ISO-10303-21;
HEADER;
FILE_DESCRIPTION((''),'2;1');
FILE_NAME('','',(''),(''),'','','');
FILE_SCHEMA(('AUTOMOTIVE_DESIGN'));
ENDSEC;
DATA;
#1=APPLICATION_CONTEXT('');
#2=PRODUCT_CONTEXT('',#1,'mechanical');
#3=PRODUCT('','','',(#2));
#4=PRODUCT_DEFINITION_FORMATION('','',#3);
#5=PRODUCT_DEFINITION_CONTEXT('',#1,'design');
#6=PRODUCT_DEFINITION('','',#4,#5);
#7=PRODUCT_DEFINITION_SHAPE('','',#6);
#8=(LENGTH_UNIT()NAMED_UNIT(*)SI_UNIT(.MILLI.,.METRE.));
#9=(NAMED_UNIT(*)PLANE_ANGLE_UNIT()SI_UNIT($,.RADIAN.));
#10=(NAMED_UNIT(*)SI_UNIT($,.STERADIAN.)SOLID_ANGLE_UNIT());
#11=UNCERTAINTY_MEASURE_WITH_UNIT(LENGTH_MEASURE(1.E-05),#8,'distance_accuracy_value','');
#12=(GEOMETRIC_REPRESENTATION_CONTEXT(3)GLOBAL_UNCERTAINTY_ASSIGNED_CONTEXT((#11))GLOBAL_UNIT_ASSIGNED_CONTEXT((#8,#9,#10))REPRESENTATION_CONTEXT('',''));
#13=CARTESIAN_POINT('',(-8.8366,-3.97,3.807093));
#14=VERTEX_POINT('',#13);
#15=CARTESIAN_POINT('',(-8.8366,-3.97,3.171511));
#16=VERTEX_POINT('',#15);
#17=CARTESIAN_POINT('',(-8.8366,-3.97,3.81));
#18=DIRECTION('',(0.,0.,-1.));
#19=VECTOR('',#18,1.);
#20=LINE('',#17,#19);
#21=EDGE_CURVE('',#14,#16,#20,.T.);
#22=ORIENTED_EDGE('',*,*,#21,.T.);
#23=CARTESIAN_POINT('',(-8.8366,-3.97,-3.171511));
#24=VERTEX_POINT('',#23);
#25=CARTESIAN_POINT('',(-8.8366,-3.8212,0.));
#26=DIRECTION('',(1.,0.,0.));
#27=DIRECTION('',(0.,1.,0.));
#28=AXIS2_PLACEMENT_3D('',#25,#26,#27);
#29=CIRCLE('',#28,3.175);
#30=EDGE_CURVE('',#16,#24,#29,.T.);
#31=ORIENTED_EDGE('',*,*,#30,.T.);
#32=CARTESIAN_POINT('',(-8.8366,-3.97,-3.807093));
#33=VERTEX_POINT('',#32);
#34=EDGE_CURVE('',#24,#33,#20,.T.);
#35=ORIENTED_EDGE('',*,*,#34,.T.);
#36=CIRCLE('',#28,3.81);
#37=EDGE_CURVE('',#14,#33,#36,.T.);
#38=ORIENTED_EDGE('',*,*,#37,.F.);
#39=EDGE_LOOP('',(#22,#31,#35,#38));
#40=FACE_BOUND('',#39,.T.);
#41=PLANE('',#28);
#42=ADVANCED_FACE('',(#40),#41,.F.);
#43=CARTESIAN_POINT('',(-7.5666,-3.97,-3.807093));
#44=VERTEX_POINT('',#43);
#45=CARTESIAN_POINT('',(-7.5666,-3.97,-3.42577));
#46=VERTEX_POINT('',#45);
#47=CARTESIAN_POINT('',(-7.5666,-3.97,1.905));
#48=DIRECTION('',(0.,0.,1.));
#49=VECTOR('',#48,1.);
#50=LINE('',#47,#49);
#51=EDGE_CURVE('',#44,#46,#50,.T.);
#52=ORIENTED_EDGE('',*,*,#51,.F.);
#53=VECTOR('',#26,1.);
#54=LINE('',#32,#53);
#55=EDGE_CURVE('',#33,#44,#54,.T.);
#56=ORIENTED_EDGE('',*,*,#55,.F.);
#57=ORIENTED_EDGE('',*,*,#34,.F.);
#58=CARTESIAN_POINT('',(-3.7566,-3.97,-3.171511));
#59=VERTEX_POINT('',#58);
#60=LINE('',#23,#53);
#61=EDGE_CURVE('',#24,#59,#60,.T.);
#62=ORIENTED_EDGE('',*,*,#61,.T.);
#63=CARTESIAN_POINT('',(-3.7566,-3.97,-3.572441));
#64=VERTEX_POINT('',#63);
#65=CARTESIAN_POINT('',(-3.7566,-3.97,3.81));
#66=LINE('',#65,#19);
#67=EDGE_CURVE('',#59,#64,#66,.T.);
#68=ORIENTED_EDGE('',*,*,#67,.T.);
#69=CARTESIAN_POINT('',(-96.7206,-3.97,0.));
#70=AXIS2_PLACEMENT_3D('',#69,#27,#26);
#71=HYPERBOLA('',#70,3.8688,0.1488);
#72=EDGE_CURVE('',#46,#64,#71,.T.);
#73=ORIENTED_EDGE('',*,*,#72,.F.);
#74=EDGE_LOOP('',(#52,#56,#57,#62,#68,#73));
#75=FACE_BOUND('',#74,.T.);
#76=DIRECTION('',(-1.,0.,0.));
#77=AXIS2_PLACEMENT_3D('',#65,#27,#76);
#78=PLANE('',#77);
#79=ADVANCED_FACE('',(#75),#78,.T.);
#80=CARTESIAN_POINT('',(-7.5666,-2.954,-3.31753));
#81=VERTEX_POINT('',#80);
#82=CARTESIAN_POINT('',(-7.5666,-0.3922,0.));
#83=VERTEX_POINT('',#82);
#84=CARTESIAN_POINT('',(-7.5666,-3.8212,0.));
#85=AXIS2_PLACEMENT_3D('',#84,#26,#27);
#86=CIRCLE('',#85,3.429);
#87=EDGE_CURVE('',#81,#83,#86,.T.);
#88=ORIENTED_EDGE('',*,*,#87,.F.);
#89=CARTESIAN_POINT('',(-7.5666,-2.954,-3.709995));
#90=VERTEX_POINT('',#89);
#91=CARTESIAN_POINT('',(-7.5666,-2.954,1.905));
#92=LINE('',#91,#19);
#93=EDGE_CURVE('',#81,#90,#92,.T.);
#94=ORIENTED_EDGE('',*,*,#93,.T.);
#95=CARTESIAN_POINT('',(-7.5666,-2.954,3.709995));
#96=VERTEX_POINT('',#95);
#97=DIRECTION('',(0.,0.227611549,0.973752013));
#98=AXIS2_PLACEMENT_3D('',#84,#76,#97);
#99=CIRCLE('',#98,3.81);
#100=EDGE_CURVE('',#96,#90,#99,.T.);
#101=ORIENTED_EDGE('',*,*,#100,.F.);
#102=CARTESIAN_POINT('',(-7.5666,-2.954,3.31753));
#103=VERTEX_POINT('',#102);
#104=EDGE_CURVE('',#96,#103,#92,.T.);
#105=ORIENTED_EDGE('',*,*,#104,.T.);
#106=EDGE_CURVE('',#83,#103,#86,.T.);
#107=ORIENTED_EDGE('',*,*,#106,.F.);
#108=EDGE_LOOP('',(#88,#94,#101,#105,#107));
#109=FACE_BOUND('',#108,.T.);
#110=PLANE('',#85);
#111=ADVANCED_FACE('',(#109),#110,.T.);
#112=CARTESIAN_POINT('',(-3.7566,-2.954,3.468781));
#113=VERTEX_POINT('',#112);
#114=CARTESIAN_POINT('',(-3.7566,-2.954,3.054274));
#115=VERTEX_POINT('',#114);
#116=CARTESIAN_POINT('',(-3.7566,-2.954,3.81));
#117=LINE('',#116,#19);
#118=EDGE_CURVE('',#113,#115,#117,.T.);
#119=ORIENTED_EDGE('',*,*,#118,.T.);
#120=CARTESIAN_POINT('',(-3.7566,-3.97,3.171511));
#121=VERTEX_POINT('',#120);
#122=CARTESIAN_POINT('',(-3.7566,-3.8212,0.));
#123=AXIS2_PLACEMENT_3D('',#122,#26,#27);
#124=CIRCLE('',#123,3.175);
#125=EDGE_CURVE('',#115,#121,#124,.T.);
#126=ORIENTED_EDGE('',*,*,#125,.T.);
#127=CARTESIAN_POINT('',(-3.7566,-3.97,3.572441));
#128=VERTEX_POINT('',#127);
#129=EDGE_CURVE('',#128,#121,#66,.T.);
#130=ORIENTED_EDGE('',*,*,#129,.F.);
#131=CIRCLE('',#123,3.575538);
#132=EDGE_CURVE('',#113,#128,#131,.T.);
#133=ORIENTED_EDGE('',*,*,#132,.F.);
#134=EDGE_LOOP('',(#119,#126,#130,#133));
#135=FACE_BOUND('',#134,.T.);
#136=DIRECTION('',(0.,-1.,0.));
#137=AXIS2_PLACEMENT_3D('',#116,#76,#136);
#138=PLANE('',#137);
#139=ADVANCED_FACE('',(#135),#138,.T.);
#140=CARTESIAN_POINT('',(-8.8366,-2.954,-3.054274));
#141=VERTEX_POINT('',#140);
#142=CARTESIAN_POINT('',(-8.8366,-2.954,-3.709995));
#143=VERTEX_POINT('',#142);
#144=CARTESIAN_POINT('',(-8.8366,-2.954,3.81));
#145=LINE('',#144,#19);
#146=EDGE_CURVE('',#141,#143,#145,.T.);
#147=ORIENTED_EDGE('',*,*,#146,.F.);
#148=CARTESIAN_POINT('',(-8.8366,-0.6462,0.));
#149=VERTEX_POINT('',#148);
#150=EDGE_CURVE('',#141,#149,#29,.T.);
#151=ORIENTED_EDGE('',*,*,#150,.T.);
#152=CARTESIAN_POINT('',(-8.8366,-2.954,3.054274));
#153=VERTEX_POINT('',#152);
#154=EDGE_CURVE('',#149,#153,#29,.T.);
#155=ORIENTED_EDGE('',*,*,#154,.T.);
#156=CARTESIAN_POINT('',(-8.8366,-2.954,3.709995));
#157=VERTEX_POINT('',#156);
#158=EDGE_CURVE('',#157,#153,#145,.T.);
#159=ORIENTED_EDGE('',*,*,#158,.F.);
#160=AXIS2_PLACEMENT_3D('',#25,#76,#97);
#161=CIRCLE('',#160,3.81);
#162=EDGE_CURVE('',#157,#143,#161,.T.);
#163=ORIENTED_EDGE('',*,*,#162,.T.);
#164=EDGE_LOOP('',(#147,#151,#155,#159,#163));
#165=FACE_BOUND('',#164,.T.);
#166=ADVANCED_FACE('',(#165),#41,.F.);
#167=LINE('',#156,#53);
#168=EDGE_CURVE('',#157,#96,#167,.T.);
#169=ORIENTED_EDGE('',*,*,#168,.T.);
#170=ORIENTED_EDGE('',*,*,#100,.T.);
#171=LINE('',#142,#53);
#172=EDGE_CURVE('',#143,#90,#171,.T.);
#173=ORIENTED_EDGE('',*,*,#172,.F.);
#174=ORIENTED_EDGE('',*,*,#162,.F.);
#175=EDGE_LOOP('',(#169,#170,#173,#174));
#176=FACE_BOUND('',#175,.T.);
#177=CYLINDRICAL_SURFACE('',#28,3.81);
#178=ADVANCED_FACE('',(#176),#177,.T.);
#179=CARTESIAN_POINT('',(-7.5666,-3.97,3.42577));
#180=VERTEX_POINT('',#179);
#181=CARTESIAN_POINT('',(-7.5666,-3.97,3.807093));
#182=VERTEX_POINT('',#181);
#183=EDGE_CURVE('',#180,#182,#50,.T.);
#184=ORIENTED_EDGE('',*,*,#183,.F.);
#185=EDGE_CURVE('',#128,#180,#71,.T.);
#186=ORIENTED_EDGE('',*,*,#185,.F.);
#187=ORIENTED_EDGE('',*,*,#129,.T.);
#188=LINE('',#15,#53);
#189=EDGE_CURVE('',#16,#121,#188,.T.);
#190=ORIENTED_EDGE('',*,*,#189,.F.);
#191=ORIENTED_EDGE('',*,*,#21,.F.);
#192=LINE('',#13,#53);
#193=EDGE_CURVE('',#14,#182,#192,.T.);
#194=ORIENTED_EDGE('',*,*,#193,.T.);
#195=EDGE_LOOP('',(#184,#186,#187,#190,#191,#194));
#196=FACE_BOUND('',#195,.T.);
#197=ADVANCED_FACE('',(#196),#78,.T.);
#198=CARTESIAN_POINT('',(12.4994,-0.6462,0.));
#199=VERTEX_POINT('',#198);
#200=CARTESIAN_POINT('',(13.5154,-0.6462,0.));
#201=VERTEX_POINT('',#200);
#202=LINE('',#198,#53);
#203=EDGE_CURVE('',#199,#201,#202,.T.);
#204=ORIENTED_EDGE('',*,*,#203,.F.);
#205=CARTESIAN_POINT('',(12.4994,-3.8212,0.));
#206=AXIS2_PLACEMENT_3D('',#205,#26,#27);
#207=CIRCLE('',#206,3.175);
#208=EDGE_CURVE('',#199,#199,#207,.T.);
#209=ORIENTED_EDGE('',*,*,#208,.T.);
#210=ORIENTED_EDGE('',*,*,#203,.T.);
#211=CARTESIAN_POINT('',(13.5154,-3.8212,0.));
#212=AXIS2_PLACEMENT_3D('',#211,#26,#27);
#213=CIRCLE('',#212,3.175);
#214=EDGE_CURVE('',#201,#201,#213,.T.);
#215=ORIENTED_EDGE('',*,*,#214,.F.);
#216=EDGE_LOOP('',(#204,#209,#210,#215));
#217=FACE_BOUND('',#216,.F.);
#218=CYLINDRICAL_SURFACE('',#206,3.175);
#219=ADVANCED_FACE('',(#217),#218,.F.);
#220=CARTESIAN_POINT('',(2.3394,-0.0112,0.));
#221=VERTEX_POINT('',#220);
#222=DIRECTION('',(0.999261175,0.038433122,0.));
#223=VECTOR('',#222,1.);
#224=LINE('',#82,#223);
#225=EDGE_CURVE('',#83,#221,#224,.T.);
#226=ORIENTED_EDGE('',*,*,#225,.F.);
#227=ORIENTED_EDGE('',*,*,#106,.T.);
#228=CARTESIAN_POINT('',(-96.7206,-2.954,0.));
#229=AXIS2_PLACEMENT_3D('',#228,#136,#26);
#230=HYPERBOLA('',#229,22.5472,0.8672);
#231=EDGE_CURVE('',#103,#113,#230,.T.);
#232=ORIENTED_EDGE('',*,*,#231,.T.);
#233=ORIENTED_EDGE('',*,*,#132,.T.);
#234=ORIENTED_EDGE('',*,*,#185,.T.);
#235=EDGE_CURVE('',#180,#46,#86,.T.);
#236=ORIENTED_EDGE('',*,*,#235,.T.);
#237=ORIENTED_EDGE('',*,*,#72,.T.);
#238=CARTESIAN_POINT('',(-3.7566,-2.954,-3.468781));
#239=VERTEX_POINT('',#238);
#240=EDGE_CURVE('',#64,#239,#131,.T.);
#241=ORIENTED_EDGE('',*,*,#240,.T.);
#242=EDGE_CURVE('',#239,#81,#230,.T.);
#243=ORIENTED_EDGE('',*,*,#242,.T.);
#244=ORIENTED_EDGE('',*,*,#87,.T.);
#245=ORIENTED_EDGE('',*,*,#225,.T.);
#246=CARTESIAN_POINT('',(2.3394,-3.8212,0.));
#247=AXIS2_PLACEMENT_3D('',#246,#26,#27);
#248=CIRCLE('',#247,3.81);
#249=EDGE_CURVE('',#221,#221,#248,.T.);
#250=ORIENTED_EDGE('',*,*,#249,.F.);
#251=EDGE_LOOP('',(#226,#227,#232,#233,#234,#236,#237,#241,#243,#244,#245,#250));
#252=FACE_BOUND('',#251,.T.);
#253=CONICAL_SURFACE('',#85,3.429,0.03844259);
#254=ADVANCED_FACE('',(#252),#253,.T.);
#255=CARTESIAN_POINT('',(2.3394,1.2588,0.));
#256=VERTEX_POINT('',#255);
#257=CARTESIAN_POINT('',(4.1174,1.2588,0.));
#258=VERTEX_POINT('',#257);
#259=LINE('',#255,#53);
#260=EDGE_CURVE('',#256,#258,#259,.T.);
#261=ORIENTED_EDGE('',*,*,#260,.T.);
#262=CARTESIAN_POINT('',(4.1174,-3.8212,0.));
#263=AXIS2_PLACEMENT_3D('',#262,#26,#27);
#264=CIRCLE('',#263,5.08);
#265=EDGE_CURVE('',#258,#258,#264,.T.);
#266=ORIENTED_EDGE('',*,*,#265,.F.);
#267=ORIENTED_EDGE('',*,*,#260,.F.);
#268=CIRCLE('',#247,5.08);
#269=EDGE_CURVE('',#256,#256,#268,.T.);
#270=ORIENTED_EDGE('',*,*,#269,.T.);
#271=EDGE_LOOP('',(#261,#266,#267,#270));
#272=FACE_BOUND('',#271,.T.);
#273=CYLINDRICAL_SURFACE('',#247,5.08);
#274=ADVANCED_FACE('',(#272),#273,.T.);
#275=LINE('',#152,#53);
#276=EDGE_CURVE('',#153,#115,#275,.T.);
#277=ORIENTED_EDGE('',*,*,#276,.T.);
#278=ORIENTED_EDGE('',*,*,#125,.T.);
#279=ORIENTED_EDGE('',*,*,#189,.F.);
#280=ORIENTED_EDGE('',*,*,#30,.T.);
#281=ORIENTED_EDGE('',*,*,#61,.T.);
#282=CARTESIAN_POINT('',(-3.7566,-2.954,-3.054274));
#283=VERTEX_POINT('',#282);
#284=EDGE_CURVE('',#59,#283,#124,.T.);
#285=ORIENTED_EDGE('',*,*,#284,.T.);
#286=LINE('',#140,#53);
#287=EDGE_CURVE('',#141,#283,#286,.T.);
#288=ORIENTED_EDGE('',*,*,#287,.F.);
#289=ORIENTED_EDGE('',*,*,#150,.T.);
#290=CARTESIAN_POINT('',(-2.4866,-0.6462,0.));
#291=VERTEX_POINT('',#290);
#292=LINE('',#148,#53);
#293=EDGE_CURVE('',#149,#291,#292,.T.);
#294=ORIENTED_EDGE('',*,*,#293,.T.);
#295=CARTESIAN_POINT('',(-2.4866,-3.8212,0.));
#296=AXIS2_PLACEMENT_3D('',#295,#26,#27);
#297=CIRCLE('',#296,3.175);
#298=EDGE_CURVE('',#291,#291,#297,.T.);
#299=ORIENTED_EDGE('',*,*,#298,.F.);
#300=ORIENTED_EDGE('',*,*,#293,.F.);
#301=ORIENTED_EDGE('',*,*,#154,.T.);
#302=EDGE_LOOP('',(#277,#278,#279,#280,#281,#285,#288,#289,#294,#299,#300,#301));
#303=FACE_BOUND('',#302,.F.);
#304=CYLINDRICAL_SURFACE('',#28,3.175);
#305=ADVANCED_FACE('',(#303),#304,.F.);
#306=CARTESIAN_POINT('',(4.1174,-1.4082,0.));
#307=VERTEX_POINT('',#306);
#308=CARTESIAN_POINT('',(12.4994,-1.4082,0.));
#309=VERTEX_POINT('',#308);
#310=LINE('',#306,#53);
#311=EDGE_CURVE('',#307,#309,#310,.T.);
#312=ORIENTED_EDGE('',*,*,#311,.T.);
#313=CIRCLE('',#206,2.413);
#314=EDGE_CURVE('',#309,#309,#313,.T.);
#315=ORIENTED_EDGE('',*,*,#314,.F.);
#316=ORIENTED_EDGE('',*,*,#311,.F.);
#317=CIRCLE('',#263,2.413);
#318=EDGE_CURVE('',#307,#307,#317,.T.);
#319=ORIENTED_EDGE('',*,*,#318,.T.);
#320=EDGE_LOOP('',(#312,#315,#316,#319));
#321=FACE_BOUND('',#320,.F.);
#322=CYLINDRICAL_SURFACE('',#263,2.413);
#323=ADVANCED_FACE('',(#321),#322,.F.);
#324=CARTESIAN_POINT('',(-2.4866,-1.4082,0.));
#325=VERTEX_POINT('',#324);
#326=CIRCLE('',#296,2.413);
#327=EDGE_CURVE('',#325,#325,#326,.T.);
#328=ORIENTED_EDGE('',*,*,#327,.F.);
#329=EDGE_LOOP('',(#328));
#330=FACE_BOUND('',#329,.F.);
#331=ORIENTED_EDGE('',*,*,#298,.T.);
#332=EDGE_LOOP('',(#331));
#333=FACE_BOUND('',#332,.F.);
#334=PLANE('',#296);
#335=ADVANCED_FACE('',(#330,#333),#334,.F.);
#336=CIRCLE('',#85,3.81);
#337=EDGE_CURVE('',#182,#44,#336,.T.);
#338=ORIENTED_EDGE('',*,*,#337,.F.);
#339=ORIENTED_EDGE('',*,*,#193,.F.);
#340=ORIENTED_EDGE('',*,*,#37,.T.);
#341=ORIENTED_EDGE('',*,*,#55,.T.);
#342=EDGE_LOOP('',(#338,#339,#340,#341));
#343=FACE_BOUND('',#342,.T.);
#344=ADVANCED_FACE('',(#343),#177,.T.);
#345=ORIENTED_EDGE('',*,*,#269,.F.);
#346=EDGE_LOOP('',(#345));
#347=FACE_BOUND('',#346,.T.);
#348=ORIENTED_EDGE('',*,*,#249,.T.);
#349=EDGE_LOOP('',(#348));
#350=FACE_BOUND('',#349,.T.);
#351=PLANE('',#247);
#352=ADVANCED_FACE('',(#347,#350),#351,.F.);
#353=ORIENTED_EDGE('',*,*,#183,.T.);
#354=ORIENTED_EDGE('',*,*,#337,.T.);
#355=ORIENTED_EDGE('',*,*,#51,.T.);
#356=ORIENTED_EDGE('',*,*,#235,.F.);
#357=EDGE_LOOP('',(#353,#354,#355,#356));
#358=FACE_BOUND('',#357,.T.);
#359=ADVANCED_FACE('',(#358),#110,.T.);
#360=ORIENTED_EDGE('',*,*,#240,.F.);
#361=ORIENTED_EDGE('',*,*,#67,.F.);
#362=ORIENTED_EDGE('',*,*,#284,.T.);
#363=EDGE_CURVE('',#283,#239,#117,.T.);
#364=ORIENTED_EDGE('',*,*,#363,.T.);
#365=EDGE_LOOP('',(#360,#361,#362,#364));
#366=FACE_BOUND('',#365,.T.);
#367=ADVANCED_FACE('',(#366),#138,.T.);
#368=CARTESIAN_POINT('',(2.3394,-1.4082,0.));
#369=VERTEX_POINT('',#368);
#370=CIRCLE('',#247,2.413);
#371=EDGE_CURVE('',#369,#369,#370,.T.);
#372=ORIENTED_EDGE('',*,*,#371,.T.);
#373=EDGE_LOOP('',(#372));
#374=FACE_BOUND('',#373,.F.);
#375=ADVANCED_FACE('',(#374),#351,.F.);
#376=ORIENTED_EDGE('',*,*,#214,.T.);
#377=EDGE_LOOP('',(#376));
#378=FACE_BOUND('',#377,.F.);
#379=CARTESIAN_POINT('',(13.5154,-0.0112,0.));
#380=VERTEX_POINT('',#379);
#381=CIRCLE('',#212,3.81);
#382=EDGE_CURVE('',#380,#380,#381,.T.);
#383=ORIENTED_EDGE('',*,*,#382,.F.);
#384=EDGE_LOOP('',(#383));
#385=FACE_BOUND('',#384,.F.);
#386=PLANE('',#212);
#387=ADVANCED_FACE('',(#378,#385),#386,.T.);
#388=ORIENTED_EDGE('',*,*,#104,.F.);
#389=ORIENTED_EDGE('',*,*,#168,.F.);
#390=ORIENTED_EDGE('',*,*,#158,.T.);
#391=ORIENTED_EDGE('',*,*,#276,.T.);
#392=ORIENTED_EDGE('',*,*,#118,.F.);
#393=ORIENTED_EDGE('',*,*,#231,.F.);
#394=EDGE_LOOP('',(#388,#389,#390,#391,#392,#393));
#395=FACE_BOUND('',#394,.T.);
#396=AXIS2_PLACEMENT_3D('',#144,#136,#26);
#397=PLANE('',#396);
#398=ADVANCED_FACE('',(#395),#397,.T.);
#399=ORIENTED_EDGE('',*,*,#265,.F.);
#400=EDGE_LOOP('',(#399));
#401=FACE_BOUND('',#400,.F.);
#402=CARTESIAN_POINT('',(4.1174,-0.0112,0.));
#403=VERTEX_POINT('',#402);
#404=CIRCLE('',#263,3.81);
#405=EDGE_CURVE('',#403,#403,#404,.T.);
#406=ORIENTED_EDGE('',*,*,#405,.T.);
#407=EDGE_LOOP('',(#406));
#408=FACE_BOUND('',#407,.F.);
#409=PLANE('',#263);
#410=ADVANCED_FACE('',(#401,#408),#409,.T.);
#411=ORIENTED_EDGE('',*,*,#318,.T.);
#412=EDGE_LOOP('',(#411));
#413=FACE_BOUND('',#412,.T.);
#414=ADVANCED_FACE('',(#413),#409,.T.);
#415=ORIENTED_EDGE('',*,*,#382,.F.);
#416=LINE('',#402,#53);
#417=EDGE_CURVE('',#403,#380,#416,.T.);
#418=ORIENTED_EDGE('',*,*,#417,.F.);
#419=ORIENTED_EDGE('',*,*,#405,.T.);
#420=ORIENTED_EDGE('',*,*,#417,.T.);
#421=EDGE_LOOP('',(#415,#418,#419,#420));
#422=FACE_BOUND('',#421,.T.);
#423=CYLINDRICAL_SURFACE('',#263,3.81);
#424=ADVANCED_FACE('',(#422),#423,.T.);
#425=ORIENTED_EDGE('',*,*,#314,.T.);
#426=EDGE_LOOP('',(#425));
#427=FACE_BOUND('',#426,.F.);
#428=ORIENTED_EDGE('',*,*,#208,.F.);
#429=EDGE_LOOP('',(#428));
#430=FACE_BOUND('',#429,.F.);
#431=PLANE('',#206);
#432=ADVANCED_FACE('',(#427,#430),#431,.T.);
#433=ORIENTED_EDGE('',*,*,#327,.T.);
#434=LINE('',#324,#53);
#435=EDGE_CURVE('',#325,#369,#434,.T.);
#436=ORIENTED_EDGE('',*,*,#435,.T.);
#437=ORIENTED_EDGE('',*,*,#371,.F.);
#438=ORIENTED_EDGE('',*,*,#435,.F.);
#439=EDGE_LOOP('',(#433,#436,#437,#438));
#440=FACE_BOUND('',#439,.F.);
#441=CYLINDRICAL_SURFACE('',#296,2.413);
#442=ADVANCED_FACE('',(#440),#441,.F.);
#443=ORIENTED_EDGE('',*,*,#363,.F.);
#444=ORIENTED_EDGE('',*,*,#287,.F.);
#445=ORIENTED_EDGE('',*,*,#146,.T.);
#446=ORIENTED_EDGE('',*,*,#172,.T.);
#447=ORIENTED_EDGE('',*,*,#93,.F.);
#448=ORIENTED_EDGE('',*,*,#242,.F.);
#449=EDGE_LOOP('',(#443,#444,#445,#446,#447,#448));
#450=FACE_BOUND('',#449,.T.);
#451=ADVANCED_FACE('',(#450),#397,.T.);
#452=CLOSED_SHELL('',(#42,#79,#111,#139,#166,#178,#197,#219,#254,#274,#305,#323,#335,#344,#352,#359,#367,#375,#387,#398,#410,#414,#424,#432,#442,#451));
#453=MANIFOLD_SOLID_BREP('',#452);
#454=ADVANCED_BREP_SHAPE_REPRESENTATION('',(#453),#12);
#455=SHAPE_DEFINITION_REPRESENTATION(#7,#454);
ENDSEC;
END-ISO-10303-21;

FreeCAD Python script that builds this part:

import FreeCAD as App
import Part
import Sketcher
Q = App.Units.Quantity


def add_polygon(sketch, points):
    """Adds a closed chain of lines whose ends are joined by coincident constraints."""
    first, n = sketch.GeometryCount, len(points)
    for a, b in zip(points, points[1:] + points[:1]):
        sketch.addGeometry(Part.LineSegment(App.Vector(*a, 0), App.Vector(*b, 0)), False)
    for i in range(n):
        sketch.addConstraint(Sketcher.Constraint("Coincident", first + i, 2, first + (i + 1) % n, 1))

doc = App.newDocument("Part")
body = doc.addObject("PartDesign::Body", "Body")

sketch1 = doc.addObject("Sketcher::SketchObject", "Sketch")
body.addObject(sketch1)
sketch1.AttachmentSupport = (doc.XY_Plane, [""])
sketch1.MapMode = "FlatFace"
add_polygon(sketch1, [(-8.84, -0.01), (-8.84, -0.65), (-2.49, -0.65), (-2.49, -1.41), (2.34, -1.41), (2.34, -3.82), (4.12, -3.82), (4.12, -1.41), (12.5, -1.41), (12.5, -0.65), (13.52, -0.65), (13.52, -0.01), (4.12, -0.01), (4.12, 1.26), (2.34, 1.26), (2.34, -0.01), (-7.57, -0.39), (-7.57, -0.01)])
sketch1.addGeometry(Part.LineSegment(App.Vector(-8.84, -3.82, 0), App.Vector(13.52, -3.82, 0)), True)
sketch1.addConstraint(Sketcher.Constraint("Vertical", 0))
sketch1.addConstraint(Sketcher.Constraint("Horizontal", 1))
sketch1.addConstraint(Sketcher.Constraint("Vertical", 2))
sketch1.addConstraint(Sketcher.Constraint("Horizontal", 3))
sketch1.addConstraint(Sketcher.Constraint("Vertical", 4))
sketch1.addConstraint(Sketcher.Constraint("Horizontal", 5))
sketch1.addConstraint(Sketcher.Constraint("Vertical", 6))
sketch1.addConstraint(Sketcher.Constraint("Horizontal", 7))
sketch1.addConstraint(Sketcher.Constraint("Vertical", 8))
sketch1.addConstraint(Sketcher.Constraint("Horizontal", 9))
sketch1.addConstraint(Sketcher.Constraint("Vertical", 10))
sketch1.addConstraint(Sketcher.Constraint("Horizontal", 11))
sketch1.addConstraint(Sketcher.Constraint("Vertical", 12))
sketch1.addConstraint(Sketcher.Constraint("Horizontal", 13))
sketch1.addConstraint(Sketcher.Constraint("Vertical", 14))
sketch1.addConstraint(Sketcher.Constraint("Vertical", 16))
sketch1.addConstraint(Sketcher.Constraint("Horizontal", 17))
sketch1.addConstraint(Sketcher.Constraint("Horizontal", 18))
sketch1.addConstraint(Sketcher.Constraint("Horizontal", 3, 2, 6, 2))
sketch1.addConstraint(Sketcher.Constraint("Horizontal", 1, 2, 8, 2))
sketch1.addConstraint(Sketcher.Constraint("Horizontal", 11, 2, 14, 2))
sketch1.addConstraint(Sketcher.Constraint("Horizontal", 14, 2, 16, 2))
sketch1.addConstraint(Sketcher.Constraint("Horizontal", 5, 2, 18, 1))
sketch1.addConstraint(Sketcher.Constraint("Vertical", 6, 2, 11, 2))
sketch1.addConstraint(Sketcher.Constraint("Vertical", 4, 2, 13, 2))
sketch1.addConstraint(Sketcher.Constraint("Vertical", 17, 2, 18, 1))
sketch1.addConstraint(Sketcher.Constraint("Vertical", 10, 2, 18, 2))
sketch1.addConstraint(Sketcher.Constraint("Equal", 17, 12))
sketch1.addConstraint(Sketcher.Constraint("DistanceX", 7, 1, 7, 2, Q("0.33 in")))
sketch1.addConstraint(Sketcher.Constraint("DistanceX", 9, 1, 9, 2, Q("0.04 in")))
sketch1.addConstraint(Sketcher.Constraint("DistanceX", 17, 2, 17, 1, Q("0.05 in")))
sketch1.addConstraint(Sketcher.Constraint("DistanceX", 18, 1, 18, 2, Q("0.88 in")))
sketch1.addConstraint(Sketcher.Constraint("DistanceY", 2, 2, 2, 1, Q("0.03 in")))
sketch1.addConstraint(Sketcher.Constraint("DistanceY", 0, 2, 0, 1, Q("0.025 in")))
sketch1.addConstraint(Sketcher.Constraint("DistanceY", 16, 1, 16, 2, Q("0.015 in")))
sketch1.addConstraint(Sketcher.Constraint("DistanceX", 0, 2, 3, 2, Q("0.44 in")))
sketch1.addConstraint(Sketcher.Constraint("DistanceY", 4, 2, 1, 2, Q("0.125 in")))
sketch1.addConstraint(Sketcher.Constraint("DistanceX", 1, 1, 1, 2, Q("0.25 in")))
sketch1.addConstraint(Sketcher.Constraint("DistanceX", -1, 1, 9, 2, Q("0.5321 in")))
sketch1.addConstraint(Sketcher.Constraint("DistanceY", 0, 2, -1, 1, 0.6462))
revolution = doc.addObject("PartDesign::Revolution", "Revolution")
body.addObject(revolution)
revolution.Profile = sketch1
revolution.ReferenceAxis = (sketch1, ["Axis0"])
revolution.Angle = 360

sketch2 = doc.addObject("Sketcher::SketchObject", "Sketch001")
body.addObject(sketch2)
sketch2.AttachmentSupport = (doc.XY_Plane, [""])
sketch2.MapMode = "FlatFace"
sketch2.AttachmentOffset = App.Placement(App.Vector(0, 0, 0.15 * 25.4), App.Rotation())
add_polygon(sketch2, [(-8.8, -3), (-8.8, -4), (-3.8, -4), (-3.8, -3)])
sketch2.addConstraint(Sketcher.Constraint("Vertical", 0))
sketch2.addConstraint(Sketcher.Constraint("Horizontal", 1))
sketch2.addConstraint(Sketcher.Constraint("Vertical", 2))
sketch2.addConstraint(Sketcher.Constraint("Horizontal", 3))
sketch2.addConstraint(Sketcher.Constraint("DistanceX", 1, 1, 1, 2, Q("0.2 in")))
sketch2.addConstraint(Sketcher.Constraint("DistanceY", 0, 2, 0, 1, Q("0.04 in")))
sketch2.addConstraint(Sketcher.Constraint("DistanceY", 2, 2, -1, 1, Q("0.1163 in")))
sketch2.addConstraint(Sketcher.Constraint("DistanceX", 0, 2, -1, 1, Q("0.3479 in")))
pocket1 = doc.addObject("PartDesign::Pocket", "Pocket")
body.addObject(pocket1)
pocket1.Profile = sketch2
pocket1.Type = "ThroughAll"

doc.recompute()
